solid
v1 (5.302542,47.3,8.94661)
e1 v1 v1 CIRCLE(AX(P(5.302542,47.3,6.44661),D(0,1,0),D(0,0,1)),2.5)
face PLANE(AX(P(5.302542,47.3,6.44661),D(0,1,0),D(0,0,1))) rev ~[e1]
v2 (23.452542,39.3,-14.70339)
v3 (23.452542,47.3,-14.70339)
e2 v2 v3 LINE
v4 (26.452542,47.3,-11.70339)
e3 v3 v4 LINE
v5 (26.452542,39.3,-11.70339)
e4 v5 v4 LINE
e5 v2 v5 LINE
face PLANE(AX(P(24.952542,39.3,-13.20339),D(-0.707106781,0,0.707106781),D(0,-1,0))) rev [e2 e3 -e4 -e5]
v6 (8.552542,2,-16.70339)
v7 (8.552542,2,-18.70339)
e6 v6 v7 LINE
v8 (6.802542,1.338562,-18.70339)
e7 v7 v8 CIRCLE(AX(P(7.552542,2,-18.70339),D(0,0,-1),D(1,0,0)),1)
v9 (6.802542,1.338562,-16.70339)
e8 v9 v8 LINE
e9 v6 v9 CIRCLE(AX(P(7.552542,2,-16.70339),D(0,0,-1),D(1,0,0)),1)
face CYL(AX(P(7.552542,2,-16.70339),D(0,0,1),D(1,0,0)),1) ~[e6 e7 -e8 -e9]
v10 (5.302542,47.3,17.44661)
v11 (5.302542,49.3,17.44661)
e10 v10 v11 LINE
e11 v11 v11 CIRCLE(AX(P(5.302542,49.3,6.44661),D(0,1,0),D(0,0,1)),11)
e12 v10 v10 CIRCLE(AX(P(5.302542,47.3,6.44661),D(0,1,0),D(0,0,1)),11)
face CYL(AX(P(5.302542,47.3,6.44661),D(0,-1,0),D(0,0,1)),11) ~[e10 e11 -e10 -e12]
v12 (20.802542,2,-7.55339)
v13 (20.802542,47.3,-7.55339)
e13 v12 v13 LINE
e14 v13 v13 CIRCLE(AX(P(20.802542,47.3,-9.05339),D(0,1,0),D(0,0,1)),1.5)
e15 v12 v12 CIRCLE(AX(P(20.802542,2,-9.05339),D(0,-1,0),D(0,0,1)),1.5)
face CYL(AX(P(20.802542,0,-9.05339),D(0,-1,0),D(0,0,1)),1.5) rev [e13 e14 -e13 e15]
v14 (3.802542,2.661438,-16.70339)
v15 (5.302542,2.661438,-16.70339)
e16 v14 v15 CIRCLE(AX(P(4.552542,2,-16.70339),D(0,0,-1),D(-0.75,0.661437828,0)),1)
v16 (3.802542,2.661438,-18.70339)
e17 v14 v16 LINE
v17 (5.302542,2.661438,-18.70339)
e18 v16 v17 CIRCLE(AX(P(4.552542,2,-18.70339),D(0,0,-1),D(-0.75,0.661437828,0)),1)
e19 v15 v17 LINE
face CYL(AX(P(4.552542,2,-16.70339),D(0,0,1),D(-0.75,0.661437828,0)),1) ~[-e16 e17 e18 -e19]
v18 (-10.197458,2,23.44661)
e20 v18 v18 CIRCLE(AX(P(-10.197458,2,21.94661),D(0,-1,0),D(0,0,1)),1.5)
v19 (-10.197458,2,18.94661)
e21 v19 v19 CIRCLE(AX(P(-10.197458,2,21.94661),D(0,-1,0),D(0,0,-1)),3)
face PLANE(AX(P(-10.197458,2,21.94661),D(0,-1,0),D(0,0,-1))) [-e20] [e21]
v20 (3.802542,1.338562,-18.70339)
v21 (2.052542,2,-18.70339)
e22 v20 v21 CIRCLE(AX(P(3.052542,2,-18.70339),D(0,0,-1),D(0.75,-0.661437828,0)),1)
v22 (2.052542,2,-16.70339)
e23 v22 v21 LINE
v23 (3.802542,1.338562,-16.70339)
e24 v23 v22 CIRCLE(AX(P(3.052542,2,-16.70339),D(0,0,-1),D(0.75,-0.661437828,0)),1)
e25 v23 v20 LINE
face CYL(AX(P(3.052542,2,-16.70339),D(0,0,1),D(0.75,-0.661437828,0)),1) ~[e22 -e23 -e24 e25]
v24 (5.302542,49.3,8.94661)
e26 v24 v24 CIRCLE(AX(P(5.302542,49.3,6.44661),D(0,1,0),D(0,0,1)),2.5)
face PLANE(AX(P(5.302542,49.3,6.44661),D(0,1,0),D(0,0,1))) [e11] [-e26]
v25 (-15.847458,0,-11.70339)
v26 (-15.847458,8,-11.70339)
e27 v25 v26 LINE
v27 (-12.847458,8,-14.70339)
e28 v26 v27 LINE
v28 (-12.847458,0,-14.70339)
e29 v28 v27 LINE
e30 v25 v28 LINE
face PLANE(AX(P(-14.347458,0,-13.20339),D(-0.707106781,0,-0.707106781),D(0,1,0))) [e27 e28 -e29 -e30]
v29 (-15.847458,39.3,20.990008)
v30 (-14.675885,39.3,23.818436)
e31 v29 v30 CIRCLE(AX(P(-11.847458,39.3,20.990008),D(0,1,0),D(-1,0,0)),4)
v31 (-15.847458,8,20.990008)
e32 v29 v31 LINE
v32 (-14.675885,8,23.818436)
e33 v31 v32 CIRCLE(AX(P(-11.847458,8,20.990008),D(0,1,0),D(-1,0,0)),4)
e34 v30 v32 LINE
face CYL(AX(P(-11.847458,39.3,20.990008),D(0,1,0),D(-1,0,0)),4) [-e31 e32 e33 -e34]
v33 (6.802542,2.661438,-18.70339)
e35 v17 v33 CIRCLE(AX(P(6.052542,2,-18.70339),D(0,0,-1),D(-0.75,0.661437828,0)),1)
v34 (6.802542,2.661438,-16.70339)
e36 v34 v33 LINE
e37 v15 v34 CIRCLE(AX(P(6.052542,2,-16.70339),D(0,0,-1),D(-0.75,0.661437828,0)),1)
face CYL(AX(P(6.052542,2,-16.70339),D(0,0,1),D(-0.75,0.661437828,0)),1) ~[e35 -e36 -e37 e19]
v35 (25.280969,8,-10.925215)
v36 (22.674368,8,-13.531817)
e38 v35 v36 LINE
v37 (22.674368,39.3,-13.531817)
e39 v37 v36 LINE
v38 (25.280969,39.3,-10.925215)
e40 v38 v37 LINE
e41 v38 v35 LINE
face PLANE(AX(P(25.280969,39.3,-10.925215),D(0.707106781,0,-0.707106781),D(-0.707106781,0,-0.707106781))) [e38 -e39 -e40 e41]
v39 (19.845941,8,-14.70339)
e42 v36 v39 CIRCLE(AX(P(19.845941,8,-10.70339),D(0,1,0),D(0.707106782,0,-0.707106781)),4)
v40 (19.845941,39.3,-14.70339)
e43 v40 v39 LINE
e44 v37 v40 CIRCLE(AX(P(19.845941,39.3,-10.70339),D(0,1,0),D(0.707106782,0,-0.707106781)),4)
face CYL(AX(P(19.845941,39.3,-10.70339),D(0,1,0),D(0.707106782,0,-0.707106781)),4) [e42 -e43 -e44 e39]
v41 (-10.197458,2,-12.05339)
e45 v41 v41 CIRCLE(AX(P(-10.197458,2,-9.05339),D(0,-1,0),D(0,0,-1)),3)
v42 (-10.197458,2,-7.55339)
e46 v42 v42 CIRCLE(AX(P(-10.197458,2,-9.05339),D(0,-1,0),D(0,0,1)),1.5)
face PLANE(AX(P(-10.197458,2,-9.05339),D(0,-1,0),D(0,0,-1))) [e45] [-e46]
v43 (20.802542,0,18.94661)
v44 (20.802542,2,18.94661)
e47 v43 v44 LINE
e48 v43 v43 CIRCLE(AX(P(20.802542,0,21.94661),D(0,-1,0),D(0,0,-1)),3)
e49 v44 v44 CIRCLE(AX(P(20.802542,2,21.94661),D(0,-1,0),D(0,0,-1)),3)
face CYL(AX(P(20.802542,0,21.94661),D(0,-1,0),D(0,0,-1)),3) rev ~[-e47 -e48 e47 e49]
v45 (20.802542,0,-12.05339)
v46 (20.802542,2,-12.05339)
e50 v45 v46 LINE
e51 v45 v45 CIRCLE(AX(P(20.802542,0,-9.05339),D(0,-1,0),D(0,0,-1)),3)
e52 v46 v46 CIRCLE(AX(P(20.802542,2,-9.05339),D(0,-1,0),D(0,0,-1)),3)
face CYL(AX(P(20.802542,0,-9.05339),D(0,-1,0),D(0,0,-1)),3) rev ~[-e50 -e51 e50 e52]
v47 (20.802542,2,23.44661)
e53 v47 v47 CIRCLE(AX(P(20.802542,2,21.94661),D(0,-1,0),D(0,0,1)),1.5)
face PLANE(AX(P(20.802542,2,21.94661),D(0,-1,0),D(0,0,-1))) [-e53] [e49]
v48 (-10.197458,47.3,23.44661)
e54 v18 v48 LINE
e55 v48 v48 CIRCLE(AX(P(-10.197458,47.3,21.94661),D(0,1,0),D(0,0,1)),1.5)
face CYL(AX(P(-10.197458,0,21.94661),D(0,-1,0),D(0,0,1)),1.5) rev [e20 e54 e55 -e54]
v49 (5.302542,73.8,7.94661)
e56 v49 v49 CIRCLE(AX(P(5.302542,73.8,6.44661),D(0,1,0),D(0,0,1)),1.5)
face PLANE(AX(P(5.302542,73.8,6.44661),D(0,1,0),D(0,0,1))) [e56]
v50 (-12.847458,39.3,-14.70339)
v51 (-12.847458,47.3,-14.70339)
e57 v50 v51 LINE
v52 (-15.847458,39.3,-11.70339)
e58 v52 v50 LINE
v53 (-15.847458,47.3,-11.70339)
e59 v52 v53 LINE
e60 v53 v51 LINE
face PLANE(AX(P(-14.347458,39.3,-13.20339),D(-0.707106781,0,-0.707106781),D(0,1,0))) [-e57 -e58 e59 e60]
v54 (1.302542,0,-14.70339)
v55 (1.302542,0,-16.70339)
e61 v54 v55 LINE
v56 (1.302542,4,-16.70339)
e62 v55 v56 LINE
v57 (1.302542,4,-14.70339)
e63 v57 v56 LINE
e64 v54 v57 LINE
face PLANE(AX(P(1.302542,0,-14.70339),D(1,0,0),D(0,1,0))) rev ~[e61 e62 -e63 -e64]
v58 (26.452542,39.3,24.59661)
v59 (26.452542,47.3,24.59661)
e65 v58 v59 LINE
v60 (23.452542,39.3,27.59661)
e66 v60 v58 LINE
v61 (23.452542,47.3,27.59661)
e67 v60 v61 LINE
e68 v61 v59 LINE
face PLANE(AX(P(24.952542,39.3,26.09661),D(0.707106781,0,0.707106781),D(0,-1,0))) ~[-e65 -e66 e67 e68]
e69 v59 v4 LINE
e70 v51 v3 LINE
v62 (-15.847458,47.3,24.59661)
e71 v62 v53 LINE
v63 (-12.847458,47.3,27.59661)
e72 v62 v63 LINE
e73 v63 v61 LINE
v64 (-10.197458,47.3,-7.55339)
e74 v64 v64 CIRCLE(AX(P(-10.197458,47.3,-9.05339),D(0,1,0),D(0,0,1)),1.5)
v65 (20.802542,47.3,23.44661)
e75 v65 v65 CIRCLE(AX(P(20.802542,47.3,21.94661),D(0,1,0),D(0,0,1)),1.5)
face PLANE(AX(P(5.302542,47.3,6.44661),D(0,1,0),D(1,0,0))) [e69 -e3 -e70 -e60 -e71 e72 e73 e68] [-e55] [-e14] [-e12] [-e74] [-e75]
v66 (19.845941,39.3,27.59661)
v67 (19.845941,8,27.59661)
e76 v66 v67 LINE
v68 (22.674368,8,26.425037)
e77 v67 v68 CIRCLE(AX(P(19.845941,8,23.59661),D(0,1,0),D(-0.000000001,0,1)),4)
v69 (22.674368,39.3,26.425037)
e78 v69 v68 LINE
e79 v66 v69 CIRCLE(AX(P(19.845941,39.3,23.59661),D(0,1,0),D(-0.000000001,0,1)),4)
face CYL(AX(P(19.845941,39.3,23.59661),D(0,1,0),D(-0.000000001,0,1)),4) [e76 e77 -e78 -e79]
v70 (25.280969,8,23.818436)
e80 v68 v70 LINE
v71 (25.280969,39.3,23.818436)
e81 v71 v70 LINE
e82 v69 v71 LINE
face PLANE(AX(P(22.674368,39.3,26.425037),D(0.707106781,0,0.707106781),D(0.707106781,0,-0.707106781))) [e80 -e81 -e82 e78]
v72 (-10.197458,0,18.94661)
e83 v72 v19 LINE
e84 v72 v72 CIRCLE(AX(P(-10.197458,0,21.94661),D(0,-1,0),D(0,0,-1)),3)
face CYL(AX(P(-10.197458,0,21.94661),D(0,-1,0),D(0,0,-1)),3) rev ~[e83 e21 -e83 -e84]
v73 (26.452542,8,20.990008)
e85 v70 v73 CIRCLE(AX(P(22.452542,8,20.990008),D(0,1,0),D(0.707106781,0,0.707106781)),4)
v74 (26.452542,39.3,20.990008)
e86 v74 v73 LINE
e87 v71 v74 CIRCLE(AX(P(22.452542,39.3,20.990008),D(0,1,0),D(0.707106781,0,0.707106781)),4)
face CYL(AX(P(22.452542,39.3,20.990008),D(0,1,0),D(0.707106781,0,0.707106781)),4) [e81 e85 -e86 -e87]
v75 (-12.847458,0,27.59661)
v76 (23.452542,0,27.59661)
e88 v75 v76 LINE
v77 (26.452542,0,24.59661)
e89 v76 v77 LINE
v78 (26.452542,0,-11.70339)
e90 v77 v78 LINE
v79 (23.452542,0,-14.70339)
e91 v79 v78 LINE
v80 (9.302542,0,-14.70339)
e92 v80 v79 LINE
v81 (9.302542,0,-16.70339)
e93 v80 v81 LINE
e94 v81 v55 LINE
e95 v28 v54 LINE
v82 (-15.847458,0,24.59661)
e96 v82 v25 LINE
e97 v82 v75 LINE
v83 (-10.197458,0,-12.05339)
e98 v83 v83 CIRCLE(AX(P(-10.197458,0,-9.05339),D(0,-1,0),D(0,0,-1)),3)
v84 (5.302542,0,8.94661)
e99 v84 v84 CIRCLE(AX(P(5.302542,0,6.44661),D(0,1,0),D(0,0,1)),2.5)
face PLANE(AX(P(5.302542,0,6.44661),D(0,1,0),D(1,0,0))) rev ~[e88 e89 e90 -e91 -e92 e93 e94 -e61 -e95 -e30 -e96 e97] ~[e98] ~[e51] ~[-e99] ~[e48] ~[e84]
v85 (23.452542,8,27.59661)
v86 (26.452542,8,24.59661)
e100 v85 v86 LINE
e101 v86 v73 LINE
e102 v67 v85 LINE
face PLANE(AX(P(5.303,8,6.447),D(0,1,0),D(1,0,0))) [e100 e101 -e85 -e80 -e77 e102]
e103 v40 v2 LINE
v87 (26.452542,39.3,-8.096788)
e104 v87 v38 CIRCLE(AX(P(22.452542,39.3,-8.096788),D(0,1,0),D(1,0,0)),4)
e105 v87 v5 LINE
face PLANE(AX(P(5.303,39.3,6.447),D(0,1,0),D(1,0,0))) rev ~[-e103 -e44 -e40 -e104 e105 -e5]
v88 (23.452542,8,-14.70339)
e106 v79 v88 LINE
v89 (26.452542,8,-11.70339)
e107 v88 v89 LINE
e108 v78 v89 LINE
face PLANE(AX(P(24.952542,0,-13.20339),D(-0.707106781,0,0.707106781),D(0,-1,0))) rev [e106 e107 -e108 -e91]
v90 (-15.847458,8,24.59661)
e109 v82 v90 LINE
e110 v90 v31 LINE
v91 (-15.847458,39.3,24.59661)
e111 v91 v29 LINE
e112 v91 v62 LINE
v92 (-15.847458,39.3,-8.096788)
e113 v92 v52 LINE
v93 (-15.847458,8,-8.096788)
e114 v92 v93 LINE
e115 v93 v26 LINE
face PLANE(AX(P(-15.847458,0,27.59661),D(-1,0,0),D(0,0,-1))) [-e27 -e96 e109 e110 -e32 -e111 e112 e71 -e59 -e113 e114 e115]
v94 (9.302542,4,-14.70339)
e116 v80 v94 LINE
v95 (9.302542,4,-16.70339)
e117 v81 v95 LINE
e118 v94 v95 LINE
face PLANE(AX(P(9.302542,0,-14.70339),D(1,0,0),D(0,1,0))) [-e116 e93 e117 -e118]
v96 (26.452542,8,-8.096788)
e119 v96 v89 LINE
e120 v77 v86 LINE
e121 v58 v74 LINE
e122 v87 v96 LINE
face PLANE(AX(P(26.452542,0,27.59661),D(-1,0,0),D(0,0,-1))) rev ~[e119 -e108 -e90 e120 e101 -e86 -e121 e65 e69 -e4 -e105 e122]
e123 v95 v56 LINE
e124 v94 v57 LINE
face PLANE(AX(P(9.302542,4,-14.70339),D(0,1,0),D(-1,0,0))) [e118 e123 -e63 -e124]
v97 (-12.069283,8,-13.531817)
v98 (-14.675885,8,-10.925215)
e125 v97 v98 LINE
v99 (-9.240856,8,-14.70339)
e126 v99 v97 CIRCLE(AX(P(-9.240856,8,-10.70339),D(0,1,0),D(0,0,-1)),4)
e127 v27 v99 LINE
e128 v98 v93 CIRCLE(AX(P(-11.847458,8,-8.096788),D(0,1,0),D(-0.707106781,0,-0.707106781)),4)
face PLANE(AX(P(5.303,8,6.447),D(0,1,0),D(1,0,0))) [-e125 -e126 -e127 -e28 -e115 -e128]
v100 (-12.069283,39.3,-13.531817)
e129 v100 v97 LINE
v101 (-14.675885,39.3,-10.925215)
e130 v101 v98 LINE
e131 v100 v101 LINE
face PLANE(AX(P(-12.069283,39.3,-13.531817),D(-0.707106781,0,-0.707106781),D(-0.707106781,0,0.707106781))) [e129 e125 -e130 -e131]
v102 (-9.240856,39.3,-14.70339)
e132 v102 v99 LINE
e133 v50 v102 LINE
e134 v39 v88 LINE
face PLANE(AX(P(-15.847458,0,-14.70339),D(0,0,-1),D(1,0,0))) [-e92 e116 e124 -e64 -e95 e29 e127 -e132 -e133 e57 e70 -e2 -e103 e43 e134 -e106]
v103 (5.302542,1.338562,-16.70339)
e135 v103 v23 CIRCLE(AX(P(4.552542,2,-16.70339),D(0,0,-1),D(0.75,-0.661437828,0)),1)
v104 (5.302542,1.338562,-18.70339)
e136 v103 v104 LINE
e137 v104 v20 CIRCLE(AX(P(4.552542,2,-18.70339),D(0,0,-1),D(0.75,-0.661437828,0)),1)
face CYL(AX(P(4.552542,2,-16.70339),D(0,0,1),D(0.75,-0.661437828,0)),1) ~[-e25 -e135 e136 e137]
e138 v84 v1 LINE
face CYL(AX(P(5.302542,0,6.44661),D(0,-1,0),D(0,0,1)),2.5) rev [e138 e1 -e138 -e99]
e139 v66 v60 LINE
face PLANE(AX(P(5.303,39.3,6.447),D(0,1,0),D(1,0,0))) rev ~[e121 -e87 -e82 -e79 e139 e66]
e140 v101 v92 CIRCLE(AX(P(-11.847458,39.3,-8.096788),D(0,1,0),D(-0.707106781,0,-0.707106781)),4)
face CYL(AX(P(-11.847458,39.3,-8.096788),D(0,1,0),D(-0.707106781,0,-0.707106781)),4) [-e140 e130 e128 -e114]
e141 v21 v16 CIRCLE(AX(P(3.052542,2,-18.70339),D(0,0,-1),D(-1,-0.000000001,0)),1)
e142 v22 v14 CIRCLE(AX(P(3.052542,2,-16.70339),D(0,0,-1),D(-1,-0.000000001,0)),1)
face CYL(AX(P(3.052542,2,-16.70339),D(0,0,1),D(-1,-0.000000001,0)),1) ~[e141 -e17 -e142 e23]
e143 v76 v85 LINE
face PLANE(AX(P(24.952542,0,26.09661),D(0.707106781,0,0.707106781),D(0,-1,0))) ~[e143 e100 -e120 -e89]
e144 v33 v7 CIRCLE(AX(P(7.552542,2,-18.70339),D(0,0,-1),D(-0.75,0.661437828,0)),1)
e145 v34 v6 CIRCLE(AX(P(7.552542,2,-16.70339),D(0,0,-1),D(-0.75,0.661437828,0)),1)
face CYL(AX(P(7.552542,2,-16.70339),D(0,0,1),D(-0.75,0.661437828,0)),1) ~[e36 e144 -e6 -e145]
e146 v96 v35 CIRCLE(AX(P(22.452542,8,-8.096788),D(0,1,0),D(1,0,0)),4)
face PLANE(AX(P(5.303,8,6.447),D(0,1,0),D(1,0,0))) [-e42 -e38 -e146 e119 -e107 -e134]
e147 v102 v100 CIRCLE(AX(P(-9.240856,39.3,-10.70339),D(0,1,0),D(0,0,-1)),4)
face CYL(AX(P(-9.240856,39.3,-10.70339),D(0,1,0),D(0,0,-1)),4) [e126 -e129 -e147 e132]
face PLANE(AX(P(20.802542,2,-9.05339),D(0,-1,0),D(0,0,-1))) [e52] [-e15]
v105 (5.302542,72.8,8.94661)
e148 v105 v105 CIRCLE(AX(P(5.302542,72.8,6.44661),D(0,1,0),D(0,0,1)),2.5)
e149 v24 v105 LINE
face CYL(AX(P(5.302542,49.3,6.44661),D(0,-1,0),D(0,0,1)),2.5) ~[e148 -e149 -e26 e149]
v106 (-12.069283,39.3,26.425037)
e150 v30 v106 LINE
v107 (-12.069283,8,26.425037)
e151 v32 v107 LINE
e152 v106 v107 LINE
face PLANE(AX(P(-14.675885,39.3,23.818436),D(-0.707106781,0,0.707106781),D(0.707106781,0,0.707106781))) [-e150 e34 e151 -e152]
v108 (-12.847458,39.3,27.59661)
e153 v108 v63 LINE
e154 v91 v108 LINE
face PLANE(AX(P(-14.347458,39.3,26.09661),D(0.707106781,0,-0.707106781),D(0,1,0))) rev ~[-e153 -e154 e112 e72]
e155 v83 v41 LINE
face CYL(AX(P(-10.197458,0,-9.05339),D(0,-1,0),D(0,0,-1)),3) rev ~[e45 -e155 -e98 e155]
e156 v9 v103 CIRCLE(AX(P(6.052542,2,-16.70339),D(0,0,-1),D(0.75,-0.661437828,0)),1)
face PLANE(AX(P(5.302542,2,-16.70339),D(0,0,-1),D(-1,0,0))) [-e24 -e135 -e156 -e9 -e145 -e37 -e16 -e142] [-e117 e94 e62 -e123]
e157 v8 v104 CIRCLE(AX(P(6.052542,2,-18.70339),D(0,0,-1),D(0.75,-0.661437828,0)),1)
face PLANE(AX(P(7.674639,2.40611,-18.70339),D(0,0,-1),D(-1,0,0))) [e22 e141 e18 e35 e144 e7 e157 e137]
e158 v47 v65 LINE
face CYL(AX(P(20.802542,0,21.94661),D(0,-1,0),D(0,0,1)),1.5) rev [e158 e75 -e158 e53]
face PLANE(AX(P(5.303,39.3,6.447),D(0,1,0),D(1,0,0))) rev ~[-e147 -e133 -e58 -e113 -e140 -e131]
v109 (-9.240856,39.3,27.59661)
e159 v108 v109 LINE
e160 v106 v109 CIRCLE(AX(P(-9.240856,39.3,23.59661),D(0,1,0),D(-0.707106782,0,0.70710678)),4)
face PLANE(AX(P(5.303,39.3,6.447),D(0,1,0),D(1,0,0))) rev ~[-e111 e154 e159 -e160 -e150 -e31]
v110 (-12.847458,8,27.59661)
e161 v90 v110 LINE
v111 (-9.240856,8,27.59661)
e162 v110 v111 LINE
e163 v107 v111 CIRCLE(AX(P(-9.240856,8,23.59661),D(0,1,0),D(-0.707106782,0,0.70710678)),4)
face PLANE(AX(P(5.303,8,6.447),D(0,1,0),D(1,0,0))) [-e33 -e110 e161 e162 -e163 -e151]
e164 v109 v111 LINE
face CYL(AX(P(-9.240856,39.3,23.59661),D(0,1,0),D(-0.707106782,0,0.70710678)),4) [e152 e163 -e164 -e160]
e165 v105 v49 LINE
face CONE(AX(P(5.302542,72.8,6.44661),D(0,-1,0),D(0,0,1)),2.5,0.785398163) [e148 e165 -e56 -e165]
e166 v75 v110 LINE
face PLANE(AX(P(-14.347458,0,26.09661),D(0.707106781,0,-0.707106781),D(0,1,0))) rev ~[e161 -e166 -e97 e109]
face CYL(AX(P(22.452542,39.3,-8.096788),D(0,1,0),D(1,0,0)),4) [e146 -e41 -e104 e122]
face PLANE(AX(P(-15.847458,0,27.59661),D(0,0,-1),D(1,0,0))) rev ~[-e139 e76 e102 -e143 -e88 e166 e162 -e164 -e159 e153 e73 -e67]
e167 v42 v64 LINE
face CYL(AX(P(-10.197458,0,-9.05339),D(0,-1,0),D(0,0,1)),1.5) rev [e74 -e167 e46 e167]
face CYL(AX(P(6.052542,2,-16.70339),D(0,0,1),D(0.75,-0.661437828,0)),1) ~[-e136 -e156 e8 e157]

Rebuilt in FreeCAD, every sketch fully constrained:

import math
import FreeCAD as App
import Part
import Sketcher

V = App.Vector
Q = App.Units.Quantity


def edges_at(feature, points):
    """Names of the edges that pass closest to the given points."""
    edges = feature.Shape.Edges
    near = lambda p: min(range(len(edges)), key=lambda i: edges[i].distToShape(Part.Vertex(*p))[0])
    return sorted({f"Edge{near(p) + 1}" for p in points})

doc = App.newDocument("Part")
params = doc.addObject("Spreadsheet::Sheet", "Params")
for row, (alias, value) in enumerate([
    ("sketch1_diameter", "3 mm"),
    ("sketch1_diameter2", "5 mm"),
    ("sketch1_width", "42.3 mm"),
    ("pad1_length", "47.3 mm"),
    ("sketch2_diameter", "22 mm"),
    ("pad2_length", "2 mm"),
    ("sketch3_diameter", "5 mm"),
    ("pad3_length", "24.5 mm"),
    ("chamfer_size", "1 mm"),
    ("sketch4_radius", "4 mm"),
    ("sketch4_width", "63.3 mm"),
    ("pocket1_length", "31.3 mm"),
    ("chamfer2_size", "3 mm"),
    ("sketch5_diameter", "6 mm"),
    ("pocket2_length", "2 mm"),
    ("sketch6_width", "8 mm"),
    ("sketch6_height", "4 mm"),
    ("pad4_length", "2 mm"),
    ("sketch7_radius", "1 mm"),
    ("pad5_length", "2 mm"),
], start=1):
    params.set(f"A{row}", alias)
    params.set(f"B{row}", "=" + value)
    params.setAlias(f"B{row}", alias)

body = doc.addObject("PartDesign::Body", "Body")

# Sketch on XZ plane
sketch1 = body.newObject("Sketcher::SketchObject", "Sketch")
sketch1.AttachmentSupport = (doc.getObject("XZ_Plane"), [""])
sketch1.MapMode = "FlatFace"
sketch1.addGeometry(Part.LineSegment(V(-15.8, -14.7, 0), V(-15.8, 27.6, 0)), False)
sketch1.addGeometry(Part.LineSegment(V(-15.8, 27.6, 0), V(26.5, 27.6, 0)), False)
sketch1.addGeometry(Part.LineSegment(V(26.5, 27.6, 0), V(26.5, -14.7, 0)), False)
sketch1.addGeometry(Part.LineSegment(V(26.5, -14.7, 0), V(-15.8, -14.7, 0)), False)
sketch1.addGeometry(Part.Circle(V(-10.2, 21.9, 0), V(0, 0, 1), 1.5), False)
sketch1.addGeometry(Part.Circle(V(20.8, 21.9, 0), V(0, 0, 1), 1.5), False)
sketch1.addGeometry(Part.Circle(V(-10.2, -9.1, 0), V(0, 0, 1), 1.5), False)
sketch1.addGeometry(Part.Circle(V(5.3, 6.4, 0), V(0, 0, 1), 2.5), False)
sketch1.addGeometry(Part.Circle(V(20.8, -9.1, 0), V(0, 0, 1), 1.5), False)
sketch1.addConstraint(Sketcher.Constraint("Coincident", 0, 2, 1, 1))
sketch1.addConstraint(Sketcher.Constraint("Coincident", 1, 2, 2, 1))
sketch1.addConstraint(Sketcher.Constraint("Coincident", 2, 2, 3, 1))
sketch1.addConstraint(Sketcher.Constraint("Coincident", 3, 2, 0, 1))
sketch1.addConstraint(Sketcher.Constraint("Vertical", 0))
sketch1.addConstraint(Sketcher.Constraint("Horizontal", 1))
sketch1.addConstraint(Sketcher.Constraint("Vertical", 2))
sketch1.addConstraint(Sketcher.Constraint("Horizontal", 3))
sketch1.addConstraint(Sketcher.Constraint("Equal", 4, 5))
sketch1.addConstraint(Sketcher.Constraint("Equal", 5, 6))
sketch1.addConstraint(Sketcher.Constraint("Equal", 6, 8))
sketch1.addConstraint(Sketcher.Constraint("Horizontal", 4, 3, 5, 3))
sketch1.addConstraint(Sketcher.Constraint("Horizontal", 6, 3, 8, 3))
sketch1.addConstraint(Sketcher.Constraint("Vertical", 4, 3, 6, 3))
sketch1.addConstraint(Sketcher.Constraint("Vertical", 5, 3, 8, 3))
sketch1.addConstraint(Sketcher.Constraint("Equal", 3, 0))
sketch1.addConstraint(Sketcher.Constraint("Diameter", 4, Q("3 mm")))
sketch1.addConstraint(Sketcher.Constraint("Diameter", 7, Q("5 mm")))
sketch1.addConstraint(Sketcher.Constraint("DistanceX", 1, 1, 1, 2, Q("42.3 mm")))
sketch1.addConstraint(Sketcher.Constraint("DistanceX", 4, 3, 5, 3, Q("31 mm")))
sketch1.addConstraint(Sketcher.Constraint("DistanceY", 6, 3, 4, 3, Q("31 mm")))
sketch1.addConstraint(Sketcher.Constraint("DistanceX", 4, 3, 7, 3, Q("15.5 mm")))
sketch1.addConstraint(Sketcher.Constraint("DistanceY", 7, 3, 4, 3, Q("15.5 mm")))
sketch1.addConstraint(Sketcher.Constraint("DistanceX", 0, 2, 4, 3, Q("5.65 mm")))
sketch1.addConstraint(Sketcher.Constraint("DistanceY", 4, 3, 0, 2, Q("5.65 mm")))
sketch1.addConstraint(Sketcher.Constraint("DistanceY", -1, 1, 4, 3, Q("21.94661 mm")))
sketch1.addConstraint(Sketcher.Constraint("DistanceX", 4, 3, -1, 1, Q("10.197458 mm")))
sketch1.setExpression("Constraints[16]", "Params.sketch1_diameter")
sketch1.setExpression("Constraints[17]", "Params.sketch1_diameter2")
sketch1.setExpression("Constraints[18]", "Params.sketch1_width")
pad1 = body.newObject("PartDesign::Pad", "Pad")
pad1.Profile = sketch1
pad1.setExpression("Length", "Params.pad1_length")
pad1.Reversed = True

# Sketch on XZ plane
sketch2 = body.newObject("Sketcher::SketchObject", "Sketch001")
sketch2.AttachmentSupport = (doc.getObject("XZ_Plane"), [""])
sketch2.MapMode = "FlatFace"
sketch2.AttachmentOffset = App.Placement(V(0, 0, -47.3), App.Rotation())
sketch2.addGeometry(Part.Circle(V(5, 6, 0), V(0, 0, 1), 11), False)
sketch2.addConstraint(Sketcher.Constraint("Diameter", 0, Q("22 mm")))
sketch2.addConstraint(Sketcher.Constraint("DistanceY", -1, 1, 0, 3, Q("6.44661 mm")))
sketch2.addConstraint(Sketcher.Constraint("DistanceX", -1, 1, 0, 3, Q("5.302542 mm")))
sketch2.setExpression("Constraints[0]", "Params.sketch2_diameter")
pad2 = body.newObject("PartDesign::Pad", "Pad001")
pad2.Profile = sketch2
pad2.setExpression("Length", "Params.pad2_length")
pad2.Reversed = True

# Sketch on XZ plane
sketch3 = body.newObject("Sketcher::SketchObject", "Sketch002")
sketch3.AttachmentSupport = (doc.getObject("XZ_Plane"), [""])
sketch3.MapMode = "FlatFace"
sketch3.AttachmentOffset = App.Placement(V(0, 0, -49.3), App.Rotation())
sketch3.addGeometry(Part.Circle(V(5.3, 6.4, 0), V(0, 0, 1), 2.5), False)
sketch3.addConstraint(Sketcher.Constraint("Diameter", 0, Q("5 mm")))
sketch3.addConstraint(Sketcher.Constraint("DistanceY", -1, 1, 0, 3, Q("6.44661 mm")))
sketch3.addConstraint(Sketcher.Constraint("DistanceX", -1, 1, 0, 3, Q("5.302542 mm")))
sketch3.setExpression("Constraints[0]", "Params.sketch3_diameter")
pad3 = body.newObject("PartDesign::Pad", "Pad002")
pad3.Profile = sketch3
pad3.setExpression("Length", "Params.pad3_length")
pad3.Reversed = True
doc.recompute()

chamfer = body.newObject("PartDesign::Chamfer", "Chamfer")
chamfer.Base = (pad3, edges_at(pad3, [(5.303, 73.8, 3.947)]))
chamfer.setExpression("Size", "Params.chamfer_size")

# Sketch on XZ plane
sketch4 = body.newObject("Sketcher::SketchObject", "Sketch003")
sketch4.AttachmentSupport = (doc.getObject("XZ_Plane"), [""])
sketch4.MapMode = "FlatFace"
sketch4.AttachmentOffset = App.Placement(V(0, 0, -39.3), App.Rotation())
sketch4.addGeometry(Part.LineSegment(V(-26.3, -25.2, 0), V(-26.3, 38.1, 0)), False)
sketch4.addGeometry(Part.LineSegment(V(-26.3, 38.1, 0), V(37, 38.1, 0)), False)
sketch4.addGeometry(Part.LineSegment(V(37, 38.1, 0), V(37, -25.2, 0)), False)
sketch4.addGeometry(Part.LineSegment(V(37, -25.2, 0), V(-26.3, -25.2, 0)), False)
sketch4.addGeometry(Part.LineSegment(V(-12.1, 26.4, 0), V(-14.7, 23.8, 0)), False)
sketch4.addGeometry(Part.ArcOfCircle(Part.Circle(V(-11.8, 21, 0), V(0, 0, 1), 4), math.radians(135), math.radians(180)), False)
sketch4.addGeometry(Part.LineSegment(V(-15.8, 21, 0), V(-15.8, -8.1, 0)), False)
sketch4.addGeometry(Part.ArcOfCircle(Part.Circle(V(-11.8, -8.1, 0), V(0, 0, 1), 4), math.radians(-180), math.radians(-135)), False)
sketch4.addGeometry(Part.LineSegment(V(-14.7, -10.9, 0), V(-12.1, -13.5, 0)), False)
sketch4.addGeometry(Part.ArcOfCircle(Part.Circle(V(-9.2, -10.7, 0), V(0, 0, 1), 4), math.radians(-135), math.radians(-90)), False)
sketch4.addGeometry(Part.LineSegment(V(-9.2, -14.7, 0), V(19.8, -14.7, 0)), False)
sketch4.addGeometry(Part.ArcOfCircle(Part.Circle(V(19.8, -10.7, 0), V(0, 0, 1), 4), math.radians(-90), math.radians(-45)), False)
sketch4.addGeometry(Part.LineSegment(V(22.7, -13.5, 0), V(25.3, -10.9, 0)), False)
sketch4.addGeometry(Part.ArcOfCircle(Part.Circle(V(22.5, -8.1, 0), V(0, 0, 1), 4), math.radians(-45), math.radians(0)), False)
sketch4.addGeometry(Part.LineSegment(V(26.5, -8.1, 0), V(26.5, 21, 0)), False)
sketch4.addGeometry(Part.ArcOfCircle(Part.Circle(V(22.5, 21, 0), V(0, 0, 1), 4), math.radians(0), math.radians(45)), False)
sketch4.addGeometry(Part.LineSegment(V(25.3, 23.8, 0), V(22.7, 26.4, 0)), False)
sketch4.addGeometry(Part.ArcOfCircle(Part.Circle(V(19.8, 23.6, 0), V(0, 0, 1), 4), math.radians(45), math.radians(90)), False)
sketch4.addGeometry(Part.LineSegment(V(19.8, 27.6, 0), V(-9.2, 27.6, 0)), False)
sketch4.addGeometry(Part.ArcOfCircle(Part.Circle(V(-9.2, 23.6, 0), V(0, 0, 1), 4), math.radians(90), math.radians(135)), False)
sketch4.addConstraint(Sketcher.Constraint("Coincident", 0, 2, 1, 1))
sketch4.addConstraint(Sketcher.Constraint("Coincident", 1, 2, 2, 1))
sketch4.addConstraint(Sketcher.Constraint("Coincident", 2, 2, 3, 1))
sketch4.addConstraint(Sketcher.Constraint("Coincident", 3, 2, 0, 1))
sketch4.addConstraint(Sketcher.Constraint("Tangent", 4, 2, 5, 1))
sketch4.addConstraint(Sketcher.Constraint("Tangent", 5, 2, 6, 1))
sketch4.addConstraint(Sketcher.Constraint("Tangent", 6, 2, 7, 1))
sketch4.addConstraint(Sketcher.Constraint("Tangent", 7, 2, 8, 1))
sketch4.addConstraint(Sketcher.Constraint("Tangent", 8, 2, 9, 1))
sketch4.addConstraint(Sketcher.Constraint("Tangent", 9, 2, 10, 1))
sketch4.addConstraint(Sketcher.Constraint("Tangent", 10, 2, 11, 1))
sketch4.addConstraint(Sketcher.Constraint("Tangent", 11, 2, 12, 1))
sketch4.addConstraint(Sketcher.Constraint("Tangent", 12, 2, 13, 1))
sketch4.addConstraint(Sketcher.Constraint("Tangent", 13, 2, 14, 1))
sketch4.addConstraint(Sketcher.Constraint("Tangent", 14, 2, 15, 1))
sketch4.addConstraint(Sketcher.Constraint("Tangent", 15, 2, 16, 1))
sketch4.addConstraint(Sketcher.Constraint("Tangent", 16, 2, 17, 1))
sketch4.addConstraint(Sketcher.Constraint("Tangent", 17, 2, 18, 1))
sketch4.addConstraint(Sketcher.Constraint("Tangent", 18, 2, 19, 1))
sketch4.addConstraint(Sketcher.Constraint("Tangent", 19, 2, 4, 1))
sketch4.addConstraint(Sketcher.Constraint("Vertical", 0))
sketch4.addConstraint(Sketcher.Constraint("Horizontal", 1))
sketch4.addConstraint(Sketcher.Constraint("Vertical", 2))
sketch4.addConstraint(Sketcher.Constraint("Horizontal", 3))
sketch4.addConstraint(Sketcher.Constraint("Vertical", 6))
sketch4.addConstraint(Sketcher.Constraint("Horizontal", 10))
sketch4.addConstraint(Sketcher.Constraint("Vertical", 14))
sketch4.addConstraint(Sketcher.Constraint("Horizontal", 18))
sketch4.addConstraint(Sketcher.Constraint("Equal", 5, 7))
sketch4.addConstraint(Sketcher.Constraint("Equal", 7, 9))
sketch4.addConstraint(Sketcher.Constraint("Equal", 9, 11))
sketch4.addConstraint(Sketcher.Constraint("Equal", 11, 13))
sketch4.addConstraint(Sketcher.Constraint("Equal", 13, 15))
sketch4.addConstraint(Sketcher.Constraint("Equal", 15, 17))
sketch4.addConstraint(Sketcher.Constraint("Equal", 17, 19))
sketch4.addConstraint(Sketcher.Constraint("Perpendicular", 4, 8))
sketch4.addConstraint(Sketcher.Constraint("Perpendicular", 8, 12))
sketch4.addConstraint(Sketcher.Constraint("Perpendicular", 12, 16))
sketch4.addConstraint(Sketcher.Constraint("Horizontal", 7, 3, 13, 3))
sketch4.addConstraint(Sketcher.Constraint("Horizontal", 5, 3, 15, 3))
sketch4.addConstraint(Sketcher.Constraint("Horizontal", 8, 2, 11, 2))
sketch4.addConstraint(Sketcher.Constraint("Vertical", 11, 3, 17, 3))
sketch4.addConstraint(Sketcher.Constraint("Equal", 3, 0))
sketch4.addConstraint(Sketcher.Constraint("Equal", 18, 6))
sketch4.addConstraint(Sketcher.Constraint("Radius", 5, Q("4 mm")))
sketch4.addConstraint(Sketcher.Constraint("DistanceX", 1, 1, 1, 2, Q("63.3 mm")))
sketch4.addConstraint(Sketcher.Constraint("DistanceX", 7, 3, 13, 3, Q("34.3 mm")))
sketch4.addConstraint(Sketcher.Constraint("DistanceX", 0, 2, -1, 1, Q("26.347 mm")))
sketch4.addConstraint(Sketcher.Constraint("DistanceY", -1, 1, 0, 2, Q("38.097 mm")))
sketch4.addConstraint(Sketcher.Constraint("DistanceX", 7, 3, 9, 3, Q("2.606602 mm")))
sketch4.addConstraint(Sketcher.Constraint("DistanceY", -1, 1, 5, 3, Q("20.990008 mm")))
sketch4.addConstraint(Sketcher.Constraint("DistanceX", -1, 1, 11, 3, Q("19.845941 mm")))
sketch4.setExpression("Constraints[44]", "Params.sketch4_radius")
sketch4.setExpression("Constraints[45]", "Params.sketch4_width")
pocket1 = body.newObject("PartDesign::Pocket", "Pocket")
pocket1.Profile = sketch4
pocket1.setExpression("Length", "Params.pocket1_length")
pocket1.Reversed = True
doc.recompute()

chamfer2 = body.newObject("PartDesign::Chamfer", "Chamfer001")
chamfer2.Base = (pocket1, edges_at(pocket1, [
    (-15.847, 4, -14.703),
    (26.453, 4, -14.703),
    (26.453, 4, 27.597),
    (-15.847, 4, 27.597),
    (-15.847, 43.3, -14.703),
    (26.453, 43.3, -14.703),
    (26.453, 43.3, 27.597),
    (-15.847, 43.3, 27.597),
]))
chamfer2.setExpression("Size", "Params.chamfer2_size")

# Sketch on XZ plane
sketch5 = body.newObject("Sketcher::SketchObject", "Sketch004")
sketch5.AttachmentSupport = (doc.getObject("XZ_Plane"), [""])
sketch5.MapMode = "FlatFace"
sketch5.addGeometry(Part.Circle(V(-10.2, -9.1, 0), V(0, 0, 1), 3), False)
sketch5.addGeometry(Part.Circle(V(-10.2, 21.9, 0), V(0, 0, 1), 3), False)
sketch5.addGeometry(Part.Circle(V(20.8, 21.9, 0), V(0, 0, 1), 3), False)
sketch5.addGeometry(Part.Circle(V(20.8, -9.1, 0), V(0, 0, 1), 3), False)
sketch5.addConstraint(Sketcher.Constraint("Equal", 0, 1))
sketch5.addConstraint(Sketcher.Constraint("Equal", 1, 2))
sketch5.addConstraint(Sketcher.Constraint("Equal", 2, 3))
sketch5.addConstraint(Sketcher.Constraint("Horizontal", 1, 3, 2, 3))
sketch5.addConstraint(Sketcher.Constraint("Horizontal", 0, 3, 3, 3))
sketch5.addConstraint(Sketcher.Constraint("Vertical", 0, 3, 1, 3))
sketch5.addConstraint(Sketcher.Constraint("Vertical", 2, 3, 3, 3))
sketch5.addConstraint(Sketcher.Constraint("Diameter", 0, Q("6 mm")))
sketch5.addConstraint(Sketcher.Constraint("DistanceY", 0, 3, 1, 3, Q("31 mm")))
sketch5.addConstraint(Sketcher.Constraint("DistanceX", 1, 3, 2, 3, Q("31 mm")))
sketch5.addConstraint(Sketcher.Constraint("DistanceY", 0, 3, -1, 1, Q("9.05339 mm")))
sketch5.addConstraint(Sketcher.Constraint("DistanceX", 0, 3, -1, 1, Q("10.197458 mm")))
sketch5.setExpression("Constraints[7]", "Params.sketch5_diameter")
pocket2 = body.newObject("PartDesign::Pocket", "Pocket001")
pocket2.Profile = sketch5
pocket2.setExpression("Length", "Params.pocket2_length")

# Sketch on XY plane
sketch6 = body.newObject("Sketcher::SketchObject", "Sketch005")
sketch6.AttachmentSupport = (doc.getObject("XY_Plane"), [""])
sketch6.MapMode = "FlatFace"
sketch6.AttachmentOffset = App.Placement(V(0, 0, -14.70339), App.Rotation())
sketch6.addGeometry(Part.LineSegment(V(9.3, 4, 0), V(9.3, 0, 0)), False)
sketch6.addGeometry(Part.LineSegment(V(9.3, 0, 0), V(1.3, 0, 0)), False)
sketch6.addGeometry(Part.LineSegment(V(1.3, 0, 0), V(1.3, 4, 0)), False)
sketch6.addGeometry(Part.LineSegment(V(1.3, 4, 0), V(9.3, 4, 0)), False)
sketch6.addConstraint(Sketcher.Constraint("Coincident", 0, 2, 1, 1))
sketch6.addConstraint(Sketcher.Constraint("Coincident", 1, 2, 2, 1))
sketch6.addConstraint(Sketcher.Constraint("Coincident", 2, 2, 3, 1))
sketch6.addConstraint(Sketcher.Constraint("Coincident", 3, 2, 0, 1))
sketch6.addConstraint(Sketcher.Constraint("Vertical", 0))
sketch6.addConstraint(Sketcher.Constraint("Horizontal", 1))
sketch6.addConstraint(Sketcher.Constraint("Vertical", 2))
sketch6.addConstraint(Sketcher.Constraint("Horizontal", 3))
sketch6.addConstraint(Sketcher.Constraint("PointOnObject", 0, 2, -1))
sketch6.addConstraint(Sketcher.Constraint("DistanceX", 1, 2, 1, 1, Q("8 mm")))
sketch6.addConstraint(Sketcher.Constraint("DistanceY", 0, 2, 0, 1, Q("4 mm")))
sketch6.addConstraint(Sketcher.Constraint("DistanceX", -1, 1, 0, 2, Q("9.302542 mm")))
sketch6.setExpression("Constraints[9]", "Params.sketch6_width")
sketch6.setExpression("Constraints[10]", "Params.sketch6_height")
pad4 = body.newObject("PartDesign::Pad", "Pad003")
pad4.Profile = sketch6
pad4.setExpression("Length", "Params.pad4_length")
pad4.Reversed = True

# Sketch on XY plane
sketch7 = body.newObject("Sketcher::SketchObject", "Sketch006")
sketch7.AttachmentSupport = (doc.getObject("XY_Plane"), [""])
sketch7.MapMode = "FlatFace"
sketch7.AttachmentOffset = App.Placement(V(0, 0, -16.70339), App.Rotation())
sketch7.addGeometry(Part.ArcOfCircle(Part.Circle(V(3.1, 2, 0), V(0, 0, 1), 1), math.radians(180), math.radians(319)), False)
sketch7.addGeometry(Part.ArcOfCircle(Part.Circle(V(3.1, 2, 0), V(0, 0, 1), 1), math.radians(41), math.radians(180)), False)
sketch7.addGeometry(Part.ArcOfCircle(Part.Circle(V(4.6, 2, 0), V(0, 0, 1), 1), math.radians(41), math.radians(139)), False)
sketch7.addGeometry(Part.ArcOfCircle(Part.Circle(V(6.1, 2, 0), V(0, 0, 1), 1), math.radians(41), math.radians(139)), False)
sketch7.addGeometry(Part.ArcOfCircle(Part.Circle(V(7.6, 2, 0), V(0, 0, 1), 1), math.radians(0), math.radians(139)), False)
sketch7.addGeometry(Part.ArcOfCircle(Part.Circle(V(7.6, 2, 0), V(0, 0, 1), 1), math.radians(-139), math.radians(0)), False)
sketch7.addGeometry(Part.ArcOfCircle(Part.Circle(V(6.1, 2, 0), V(0, 0, 1), 1), math.radians(-139), math.radians(-41)), False)
sketch7.addGeometry(Part.ArcOfCircle(Part.Circle(V(4.6, 2, 0), V(0, 0, 1), 1), math.radians(-139), math.radians(-41)), False)
sketch7.addConstraint(Sketcher.Constraint("Tangent", 0, 1, 1, 2))
sketch7.addConstraint(Sketcher.Constraint("Coincident", 1, 1, 2, 2))
sketch7.addConstraint(Sketcher.Constraint("Coincident", 2, 1, 3, 2))
sketch7.addConstraint(Sketcher.Constraint("Coincident", 3, 1, 4, 2))
sketch7.addConstraint(Sketcher.Constraint("Tangent", 4, 1, 5, 2))
sketch7.addConstraint(Sketcher.Constraint("Coincident", 5, 1, 6, 2))
sketch7.addConstraint(Sketcher.Constraint("Coincident", 6, 1, 7, 2))
sketch7.addConstraint(Sketcher.Constraint("Coincident", 7, 1, 0, 2))
sketch7.addConstraint(Sketcher.Constraint("Coincident", 6, 3, 3, 3))
sketch7.addConstraint(Sketcher.Constraint("Coincident", 7, 3, 2, 3))
sketch7.addConstraint(Sketcher.Constraint("Equal", 0, 1))
sketch7.addConstraint(Sketcher.Constraint("Equal", 1, 2))
sketch7.addConstraint(Sketcher.Constraint("Equal", 2, 3))
sketch7.addConstraint(Sketcher.Constraint("Equal", 3, 4))
sketch7.addConstraint(Sketcher.Constraint("Equal", 4, 5))
sketch7.addConstraint(Sketcher.Constraint("Equal", 5, 6))
sketch7.addConstraint(Sketcher.Constraint("Equal", 6, 7))
sketch7.addConstraint(Sketcher.Constraint("Horizontal", 1, 3, 2, 3))
sketch7.addConstraint(Sketcher.Constraint("Horizontal", 2, 3, 3, 3))
sketch7.addConstraint(Sketcher.Constraint("Horizontal", 3, 3, 4, 3))
sketch7.addConstraint(Sketcher.Constraint("Horizontal", 7, 3, 0, 1))
sketch7.addConstraint(Sketcher.Constraint("Horizontal", 1, 1, 2, 1))
sketch7.addConstraint(Sketcher.Constraint("Horizontal", 2, 1, 3, 1))
sketch7.addConstraint(Sketcher.Constraint("Horizontal", 0, 1, 4, 1))
sketch7.addConstraint(Sketcher.Constraint("Radius", 0, Q("1 mm")))
sketch7.addConstraint(Sketcher.Constraint("DistanceY", -1, 1, 0, 3, Q("2 mm")))
sketch7.addConstraint(Sketcher.Constraint("DistanceX", 0, 3, 3, 3, Q("3 mm")))
sketch7.addConstraint(Sketcher.Constraint("DistanceX", -1, 1, 0, 3, Q("3.052542 mm")))
sketch7.setExpression("Constraints[24]", "Params.sketch7_radius")
pad5 = body.newObject("PartDesign::Pad", "Pad004")
pad5.Profile = sketch7
pad5.setExpression("Length", "Params.pad5_length")
pad5.Reversed = True

doc.recompute()
